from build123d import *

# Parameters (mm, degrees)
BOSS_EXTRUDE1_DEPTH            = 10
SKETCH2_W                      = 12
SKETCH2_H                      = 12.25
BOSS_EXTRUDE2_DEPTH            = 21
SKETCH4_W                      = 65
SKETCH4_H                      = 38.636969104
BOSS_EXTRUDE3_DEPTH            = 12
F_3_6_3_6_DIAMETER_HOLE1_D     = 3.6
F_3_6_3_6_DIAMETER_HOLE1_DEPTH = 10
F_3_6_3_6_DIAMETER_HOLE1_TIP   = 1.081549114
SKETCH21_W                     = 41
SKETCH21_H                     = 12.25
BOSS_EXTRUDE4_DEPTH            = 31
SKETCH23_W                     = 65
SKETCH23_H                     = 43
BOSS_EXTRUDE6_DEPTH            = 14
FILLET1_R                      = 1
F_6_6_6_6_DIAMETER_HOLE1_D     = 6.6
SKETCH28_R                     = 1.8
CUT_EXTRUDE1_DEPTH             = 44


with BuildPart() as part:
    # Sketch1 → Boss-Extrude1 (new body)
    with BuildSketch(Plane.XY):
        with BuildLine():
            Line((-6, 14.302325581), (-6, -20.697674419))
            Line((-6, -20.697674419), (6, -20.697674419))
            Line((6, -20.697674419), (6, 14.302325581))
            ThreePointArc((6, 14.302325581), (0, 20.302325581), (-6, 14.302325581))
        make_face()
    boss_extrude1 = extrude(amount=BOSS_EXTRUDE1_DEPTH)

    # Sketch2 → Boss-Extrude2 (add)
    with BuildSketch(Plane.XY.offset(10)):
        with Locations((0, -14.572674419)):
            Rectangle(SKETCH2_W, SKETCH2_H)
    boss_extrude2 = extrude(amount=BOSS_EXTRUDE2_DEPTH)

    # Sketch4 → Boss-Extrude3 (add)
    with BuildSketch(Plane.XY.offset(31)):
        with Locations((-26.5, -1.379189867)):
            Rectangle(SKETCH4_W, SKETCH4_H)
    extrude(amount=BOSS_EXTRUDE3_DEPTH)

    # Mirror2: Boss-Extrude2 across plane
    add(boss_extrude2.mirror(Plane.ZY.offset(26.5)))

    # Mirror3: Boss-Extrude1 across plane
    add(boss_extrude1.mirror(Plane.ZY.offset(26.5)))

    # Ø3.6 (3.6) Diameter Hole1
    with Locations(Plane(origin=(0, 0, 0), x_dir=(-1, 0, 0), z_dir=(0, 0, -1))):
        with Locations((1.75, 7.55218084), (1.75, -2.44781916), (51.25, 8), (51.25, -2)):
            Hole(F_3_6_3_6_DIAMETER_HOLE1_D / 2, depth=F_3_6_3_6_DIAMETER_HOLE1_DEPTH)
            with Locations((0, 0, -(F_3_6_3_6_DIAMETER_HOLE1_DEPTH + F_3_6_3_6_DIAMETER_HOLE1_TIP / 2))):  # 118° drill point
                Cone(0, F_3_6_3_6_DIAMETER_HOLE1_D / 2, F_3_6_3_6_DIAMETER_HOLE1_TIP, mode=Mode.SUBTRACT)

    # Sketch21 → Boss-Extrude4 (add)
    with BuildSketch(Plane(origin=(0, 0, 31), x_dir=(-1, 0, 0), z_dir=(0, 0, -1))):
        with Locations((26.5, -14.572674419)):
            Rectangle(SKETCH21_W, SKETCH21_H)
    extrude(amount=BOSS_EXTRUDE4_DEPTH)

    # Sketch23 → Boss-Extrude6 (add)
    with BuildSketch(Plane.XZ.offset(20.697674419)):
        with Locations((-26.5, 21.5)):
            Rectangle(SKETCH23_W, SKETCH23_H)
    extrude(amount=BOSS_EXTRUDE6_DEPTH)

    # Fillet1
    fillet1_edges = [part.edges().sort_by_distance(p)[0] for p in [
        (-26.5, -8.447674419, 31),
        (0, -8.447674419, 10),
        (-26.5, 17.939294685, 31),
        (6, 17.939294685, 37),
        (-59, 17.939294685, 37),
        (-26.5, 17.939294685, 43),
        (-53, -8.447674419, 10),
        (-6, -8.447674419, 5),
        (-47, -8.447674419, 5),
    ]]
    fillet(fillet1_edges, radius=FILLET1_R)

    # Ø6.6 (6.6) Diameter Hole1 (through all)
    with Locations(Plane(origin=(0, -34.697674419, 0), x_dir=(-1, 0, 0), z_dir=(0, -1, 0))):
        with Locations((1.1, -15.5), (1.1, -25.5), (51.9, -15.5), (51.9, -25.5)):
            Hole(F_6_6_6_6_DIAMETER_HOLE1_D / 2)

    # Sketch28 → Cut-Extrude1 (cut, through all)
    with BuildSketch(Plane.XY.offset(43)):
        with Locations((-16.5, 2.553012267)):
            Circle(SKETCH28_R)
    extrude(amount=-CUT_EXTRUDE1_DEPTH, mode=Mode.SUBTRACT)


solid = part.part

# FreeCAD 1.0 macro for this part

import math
import FreeCAD as App
import Part
import Sketcher
from FreeCAD import Vector
Q = App.Units.Quantity


def edges_at(feature, points):
    """Names of the edges that pass closest to the given points."""
    edges = feature.Shape.Edges
    near = lambda p: min(range(len(edges)), key=lambda i: edges[i].distToShape(Part.Vertex(*p))[0])
    return sorted({f"Edge{near(p) + 1}" for p in points})


def add_polygon(sketch, points):
    """Adds a closed chain of lines whose ends are joined by coincident constraints."""
    first, n = sketch.GeometryCount, len(points)
    for a, b in zip(points, points[1:] + points[:1]):
        sketch.addGeometry(Part.LineSegment(App.Vector(*a, 0), App.Vector(*b, 0)), False)
    for i in range(n):
        sketch.addConstraint(Sketcher.Constraint("Coincident", first + i, 2, first + (i + 1) % n, 1))

doc = App.newDocument("Part")
params = doc.addObject("Spreadsheet::Sheet", "Params")
for row, (alias, value) in enumerate([
    ("sketch1_radius", "6 mm"),
    ("sketch1_height", "35 mm"),
    ("pad1_length", "10 mm"),
    ("sketch2_width", "12 mm"),
    ("sketch2_height", "12.25 mm"),
    ("pad2_length", "21 mm"),
    ("sketch3_width", "65 mm"),
    ("pad3_length", "12 mm"),
    ("sketch4_diameter", "3.6 mm"),
    ("hole_diameter", "3.6 mm"),
    ("hole_depth", "10 mm"),
    ("sketch5_width", "41 mm"),
    ("sketch5_height", "12.25 mm"),
    ("pad4_length", "31 mm"),
    ("sketch6_width", "65 mm"),
    ("sketch6_height", "43 mm"),
    ("pad5_length", "14 mm"),
    ("fillet_radius", "1 mm"),
    ("sketch7_diameter", "6.6 mm"),
    ("hole2_diameter", "6.6 mm"),
    ("sketch8_diameter", "3.6 mm"),
], start=1):
    params.set(f"A{row}", alias)
    params.set(f"B{row}", "=" + value)
    params.setAlias(f"B{row}", alias)

body = doc.addObject("PartDesign::Body", "Body")

sketch1 = body.newObject("Sketcher::SketchObject", "Sketch")
sketch1.AttachmentSupport = (doc.getObject("XY_Plane"), [""])
sketch1.MapMode = "FlatFace"
sketch1.addGeometry(Part.LineSegment(Vector(-6, 14.302326, 0), Vector(-6, -20.697674, 0)), False)
sketch1.addGeometry(Part.LineSegment(Vector(-6, -20.697674, 0), Vector(6, -20.697674, 0)), False)
sketch1.addGeometry(Part.LineSegment(Vector(6, -20.697674, 0), Vector(6, 14.302326, 0)), False)
sketch1.addGeometry(Part.ArcOfCircle(Part.Circle(Vector(0, 14.302326, 0), Vector(0, 0, 1), 6), math.radians(0), math.radians(180)), False)
sketch1.addConstraint(Sketcher.Constraint("Coincident", 0, 2, 1, 1))
sketch1.addConstraint(Sketcher.Constraint("Coincident", 1, 2, 2, 1))
sketch1.addConstraint(Sketcher.Constraint("Tangent", 2, 2, 3, 1))
sketch1.addConstraint(Sketcher.Constraint("Tangent", 3, 2, 0, 1))
sketch1.addConstraint(Sketcher.Constraint("Vertical", 0))
sketch1.addConstraint(Sketcher.Constraint("Horizontal", 1))
sketch1.addConstraint(Sketcher.Constraint("Vertical", 2))
sketch1.addConstraint(Sketcher.Constraint("PointOnObject", 3, 3, -2))
sketch1.addConstraint(Sketcher.Constraint("Radius", 3, Q("6 mm")))
sketch1.addConstraint(Sketcher.Constraint("DistanceY", 0, 2, 0, 1, Q("35 mm")))
sketch1.addConstraint(Sketcher.Constraint("DistanceY", -1, 1, 3, 3, Q("14.302326 mm")))
sketch1.setExpression("Constraints[8]", "Params.sketch1_radius")
sketch1.setExpression("Constraints[9]", "Params.sketch1_height")
pad1 = body.newObject("PartDesign::Pad", "Pad")
pad1.Profile = sketch1
pad1.setExpression("Length", "Params.pad1_length")

sketch2 = body.newObject("Sketcher::SketchObject", "Sketch001")
sketch2.AttachmentSupport = (doc.getObject("XY_Plane"), [""])
sketch2.MapMode = "FlatFace"
sketch2.AttachmentOffset = App.Placement(Vector(0, 0, 10), App.Rotation())
add_polygon(sketch2, [(-6, -8.447674), (-6, -20.697674), (6, -20.697674), (6, -8.447674)])
sketch2.addConstraint(Sketcher.Constraint("Vertical", 0))
sketch2.addConstraint(Sketcher.Constraint("Horizontal", 1))
sketch2.addConstraint(Sketcher.Constraint("Vertical", 2))
sketch2.addConstraint(Sketcher.Constraint("Horizontal", 3))
sketch2.addConstraint(Sketcher.Constraint("DistanceX", 1, 1, 1, 2, Q("12 mm")))
sketch2.addConstraint(Sketcher.Constraint("DistanceX", 0, 2, -1, 1, Q("6 mm")))
sketch2.addConstraint(Sketcher.Constraint("DistanceY", 0, 2, 0, 1, Q("12.25 mm")))
sketch2.addConstraint(Sketcher.Constraint("DistanceY", 0, 2, -1, 1, Q("20.697674 mm")))
sketch2.setExpression("Constraints[8]", "Params.sketch2_width")
sketch2.setExpression("Constraints[10]", "Params.sketch2_height")
pad2 = body.newObject("PartDesign::Pad", "Pad001")
pad2.Profile = sketch2
pad2.setExpression("Length", "Params.pad2_length")

sketch3 = body.newObject("Sketcher::SketchObject", "Sketch002")
sketch3.AttachmentSupport = (doc.getObject("XY_Plane"), [""])
sketch3.MapMode = "FlatFace"
sketch3.AttachmentOffset = App.Placement(Vector(0, 0, 31), App.Rotation())
add_polygon(sketch3, [(-59, 17.939295), (-59, -20.697674), (6, -20.697674), (6, 17.939295)])
sketch3.addConstraint(Sketcher.Constraint("Vertical", 0))
sketch3.addConstraint(Sketcher.Constraint("Horizontal", 1))
sketch3.addConstraint(Sketcher.Constraint("Vertical", 2))
sketch3.addConstraint(Sketcher.Constraint("Horizontal", 3))
sketch3.addConstraint(Sketcher.Constraint("DistanceX", 1, 1, 1, 2, Q("65 mm")))
sketch3.addConstraint(Sketcher.Constraint("DistanceX", 0, 2, -1, 1, Q("59 mm")))
sketch3.addConstraint(Sketcher.Constraint("DistanceY", 0, 2, 0, 1, Q("38.636969 mm")))
sketch3.addConstraint(Sketcher.Constraint("DistanceY", 0, 2, -1, 1, Q("20.697674 mm")))
sketch3.setExpression("Constraints[8]", "Params.sketch3_width")
pad3 = body.newObject("PartDesign::Pad", "Pad002")
pad3.Profile = sketch3
pad3.setExpression("Length", "Params.pad3_length")
doc.recompute()

datumplane = body.newObject("PartDesign::Plane", "DatumPlane")
datumplane.AttachmentSupport = (doc.getObject("YZ_Plane"), [""])
datumplane.MapMode = "FlatFace"
datumplane.AttachmentOffset = App.Placement(Vector(0, 0, -26.5), App.Rotation())
mirrored = body.newObject("PartDesign::Mirrored", "Mirrored")
mirrored.Originals = [pad2]
mirrored.MirrorPlane = (datumplane, [""])
body.Tip = mirrored
doc.recompute()

datumplane2 = body.newObject("PartDesign::Plane", "DatumPlane001")
datumplane2.AttachmentSupport = (doc.getObject("YZ_Plane"), [""])
datumplane2.MapMode = "FlatFace"
datumplane2.AttachmentOffset = App.Placement(Vector(0, 0, -26.5), App.Rotation())
mirrored2 = body.newObject("PartDesign::Mirrored", "Mirrored001")
mirrored2.Originals = [pad1]
mirrored2.MirrorPlane = (datumplane2, [""])
body.Tip = mirrored2

sketch4 = body.newObject("Sketcher::SketchObject", "Sketch003")
sketch4.AttachmentSupport = (doc.getObject("XY_Plane"), [""])
sketch4.MapMode = "FlatFace"
sketch4.addGeometry(Part.Circle(Vector(-1.75, 7.552181, 0), Vector(0, 0, 1), 1.8), False)
sketch4.addGeometry(Part.Circle(Vector(-1.75, -2.447819, 0), Vector(0, 0, 1), 1.8), False)
sketch4.addGeometry(Part.Circle(Vector(-51.25, 8, 0), Vector(0, 0, 1), 1.8), False)
sketch4.addGeometry(Part.Circle(Vector(-51.25, -2, 0), Vector(0, 0, 1), 1.8), False)
sketch4.addConstraint(Sketcher.Constraint("Equal", 0, 1))
sketch4.addConstraint(Sketcher.Constraint("Equal", 1, 2))
sketch4.addConstraint(Sketcher.Constraint("Equal", 2, 3))
sketch4.addConstraint(Sketcher.Constraint("Vertical", 0, 3, 1, 3))
sketch4.addConstraint(Sketcher.Constraint("Vertical", 2, 3, 3, 3))
sketch4.addConstraint(Sketcher.Constraint("Diameter", 0, Q("3.6 mm")))
sketch4.addConstraint(Sketcher.Constraint("DistanceY", -1, 1, 2, 3, Q("8 mm")))
sketch4.addConstraint(Sketcher.Constraint("DistanceY", 3, 3, -1, 1, Q("2 mm")))
sketch4.addConstraint(Sketcher.Constraint("DistanceY", 1, 3, 0, 3, Q("10 mm")))
sketch4.addConstraint(Sketcher.Constraint("DistanceX", 2, 3, 0, 3, Q("49.5 mm")))
sketch4.addConstraint(Sketcher.Constraint("DistanceX", 0, 3, -1, 1, Q("1.75 mm")))
sketch4.addConstraint(Sketcher.Constraint("DistanceY", -1, 1, 0, 3, Q("7.552181 mm")))
sketch4.setExpression("Constraints[5]", "Params.sketch4_diameter")
doc.recompute()
hole = body.newObject("PartDesign::Hole", "Hole")
hole.Profile = sketch4
hole.ThreadType = "None"
hole.setExpression("Diameter", "Params.hole_diameter")
hole.DepthType = "Dimension"
hole.setExpression("Depth", "Params.hole_depth")
hole.DrillPoint = "Angled"
hole.DrillPointAngle = 118
hole.Reversed = True

sketch5 = body.newObject("Sketcher::SketchObject", "Sketch004")
sketch5.AttachmentSupport = (doc.getObject("XY_Plane"), [""])
sketch5.MapMode = "FlatFace"
sketch5.AttachmentOffset = App.Placement(Vector(0, 0, 31), App.Rotation())
add_polygon(sketch5, [(-6, -8.447674), (-6, -20.697674), (-47, -20.697674), (-47, -8.447674)])
sketch5.addConstraint(Sketcher.Constraint("Vertical", 0))
sketch5.addConstraint(Sketcher.Constraint("Horizontal", 1))
sketch5.addConstraint(Sketcher.Constraint("Vertical", 2))
sketch5.addConstraint(Sketcher.Constraint("Horizontal", 3))
sketch5.addConstraint(Sketcher.Constraint("DistanceX", 1, 2, 1, 1, Q("41 mm")))
sketch5.addConstraint(Sketcher.Constraint("DistanceX", 0, 2, -1, 1, Q("6 mm")))
sketch5.addConstraint(Sketcher.Constraint("DistanceY", 0, 2, 0, 1, Q("12.25 mm")))
sketch5.addConstraint(Sketcher.Constraint("DistanceY", 0, 2, -1, 1, Q("20.697674 mm")))
sketch5.setExpression("Constraints[8]", "Params.sketch5_width")
sketch5.setExpression("Constraints[10]", "Params.sketch5_height")
pad4 = body.newObject("PartDesign::Pad", "Pad003")
pad4.Profile = sketch5
pad4.setExpression("Length", "Params.pad4_length")
pad4.Reversed = True

sketch6 = body.newObject("Sketcher::SketchObject", "Sketch005")
sketch6.AttachmentSupport = (doc.getObject("XZ_Plane"), [""])
sketch6.MapMode = "FlatFace"
sketch6.AttachmentOffset = App.Placement(Vector(0, 0, 20.697674), App.Rotation())
add_polygon(sketch6, [(-59, 43), (-59, 0), (6, 0), (6, 43)])
sketch6.addConstraint(Sketcher.Constraint("Vertical", 0))
sketch6.addConstraint(Sketcher.Constraint("Horizontal", 1))
sketch6.addConstraint(Sketcher.Constraint("Vertical", 2))
sketch6.addConstraint(Sketcher.Constraint("Horizontal", 3))
sketch6.addConstraint(Sketcher.Constraint("PointOnObject", 0, 2, -1))
sketch6.addConstraint(Sketcher.Constraint("DistanceX", 1, 1, 1, 2, Q("65 mm")))
sketch6.addConstraint(Sketcher.Constraint("DistanceY", 0, 2, 0, 1, Q("43 mm")))
sketch6.addConstraint(Sketcher.Constraint("DistanceX", 0, 2, -1, 1, Q("59 mm")))
sketch6.setExpression("Constraints[9]", "Params.sketch6_width")
sketch6.setExpression("Constraints[10]", "Params.sketch6_height")
pad5 = body.newObject("PartDesign::Pad", "Pad004")
pad5.Profile = sketch6
pad5.setExpression("Length", "Params.pad5_length")
doc.recompute()

fillet = body.newObject("PartDesign::Fillet", "Fillet")
fillet.Base = (pad5, edges_at(pad5, [
    (-26.5, -8.448, 31),
    (0, -8.448, 10),
    (-26.5, 17.939, 31),
    (6, 17.939, 37),
    (-59, 17.939, 37),
    (-26.5, 17.939, 43),
    (-53, -8.448, 10),
    (-6, -8.448, 5),
    (-47, -8.448, 5),
]))
fillet.setExpression("Radius", "Params.fillet_radius")

sketch7 = body.newObject("Sketcher::SketchObject", "Sketch006")
sketch7.AttachmentSupport = (doc.getObject("XZ_Plane"), [""])
sketch7.MapMode = "FlatFace"
sketch7.AttachmentOffset = App.Placement(Vector(0, 0, 34.697674), App.Rotation())
sketch7.addGeometry(Part.Circle(Vector(-1.1, 15.5, 0), Vector(0, 0, 1), 3.3), False)
sketch7.addGeometry(Part.Circle(Vector(-1.1, 25.5, 0), Vector(0, 0, 1), 3.3), False)
sketch7.addGeometry(Part.Circle(Vector(-51.9, 15.5, 0), Vector(0, 0, 1), 3.3), False)
sketch7.addGeometry(Part.Circle(Vector(-51.9, 25.5, 0), Vector(0, 0, 1), 3.3), False)
sketch7.addConstraint(Sketcher.Constraint("Equal", 0, 1))
sketch7.addConstraint(Sketcher.Constraint("Equal", 1, 2))
sketch7.addConstraint(Sketcher.Constraint("Equal", 2, 3))
sketch7.addConstraint(Sketcher.Constraint("Horizontal", 0, 3, 2, 3))
sketch7.addConstraint(Sketcher.Constraint("Horizontal", 1, 3, 3, 3))
sketch7.addConstraint(Sketcher.Constraint("Vertical", 0, 3, 1, 3))
sketch7.addConstraint(Sketcher.Constraint("Vertical", 2, 3, 3, 3))
sketch7.addConstraint(Sketcher.Constraint("Diameter", 0, Q("6.6 mm")))
sketch7.addConstraint(Sketcher.Constraint("DistanceY", 0, 3, 1, 3, Q("10 mm")))
sketch7.addConstraint(Sketcher.Constraint("DistanceX", 0, 3, -1, 1, Q("1.1 mm")))
sketch7.addConstraint(Sketcher.Constraint("DistanceY", -1, 1, 0, 3, Q("15.5 mm")))
sketch7.addConstraint(Sketcher.Constraint("DistanceX", 2, 3, -1, 1, Q("51.9 mm")))
sketch7.setExpression("Constraints[7]", "Params.sketch7_diameter")
doc.recompute()
hole2 = body.newObject("PartDesign::Hole", "Hole001")
hole2.Profile = sketch7
hole2.ThreadType = "None"
hole2.setExpression("Diameter", "Params.hole2_diameter")
hole2.DepthType = "ThroughAll"

sketch8 = body.newObject("Sketcher::SketchObject", "Sketch007")
sketch8.AttachmentSupport = (doc.getObject("XY_Plane"), [""])
sketch8.MapMode = "FlatFace"
sketch8.AttachmentOffset = App.Placement(Vector(0, 0, 43), App.Rotation())
sketch8.addGeometry(Part.Circle(Vector(-16.5, 2.553012, 0), Vector(0, 0, 1), 1.8), False)
sketch8.addConstraint(Sketcher.Constraint("Diameter", 0, Q("3.6 mm")))
sketch8.addConstraint(Sketcher.Constraint("DistanceX", 0, 3, -1, 1, Q("16.5 mm")))
sketch8.addConstraint(Sketcher.Constraint("DistanceY", -1, 1, 0, 3, Q("2.553012 mm")))
sketch8.setExpression("Constraints[0]", "Params.sketch8_diameter")
pocket1 = body.newObject("PartDesign::Pocket", "Pocket")
pocket1.Profile = sketch8
pocket1.Type = "ThroughAll"

doc.recompute()
